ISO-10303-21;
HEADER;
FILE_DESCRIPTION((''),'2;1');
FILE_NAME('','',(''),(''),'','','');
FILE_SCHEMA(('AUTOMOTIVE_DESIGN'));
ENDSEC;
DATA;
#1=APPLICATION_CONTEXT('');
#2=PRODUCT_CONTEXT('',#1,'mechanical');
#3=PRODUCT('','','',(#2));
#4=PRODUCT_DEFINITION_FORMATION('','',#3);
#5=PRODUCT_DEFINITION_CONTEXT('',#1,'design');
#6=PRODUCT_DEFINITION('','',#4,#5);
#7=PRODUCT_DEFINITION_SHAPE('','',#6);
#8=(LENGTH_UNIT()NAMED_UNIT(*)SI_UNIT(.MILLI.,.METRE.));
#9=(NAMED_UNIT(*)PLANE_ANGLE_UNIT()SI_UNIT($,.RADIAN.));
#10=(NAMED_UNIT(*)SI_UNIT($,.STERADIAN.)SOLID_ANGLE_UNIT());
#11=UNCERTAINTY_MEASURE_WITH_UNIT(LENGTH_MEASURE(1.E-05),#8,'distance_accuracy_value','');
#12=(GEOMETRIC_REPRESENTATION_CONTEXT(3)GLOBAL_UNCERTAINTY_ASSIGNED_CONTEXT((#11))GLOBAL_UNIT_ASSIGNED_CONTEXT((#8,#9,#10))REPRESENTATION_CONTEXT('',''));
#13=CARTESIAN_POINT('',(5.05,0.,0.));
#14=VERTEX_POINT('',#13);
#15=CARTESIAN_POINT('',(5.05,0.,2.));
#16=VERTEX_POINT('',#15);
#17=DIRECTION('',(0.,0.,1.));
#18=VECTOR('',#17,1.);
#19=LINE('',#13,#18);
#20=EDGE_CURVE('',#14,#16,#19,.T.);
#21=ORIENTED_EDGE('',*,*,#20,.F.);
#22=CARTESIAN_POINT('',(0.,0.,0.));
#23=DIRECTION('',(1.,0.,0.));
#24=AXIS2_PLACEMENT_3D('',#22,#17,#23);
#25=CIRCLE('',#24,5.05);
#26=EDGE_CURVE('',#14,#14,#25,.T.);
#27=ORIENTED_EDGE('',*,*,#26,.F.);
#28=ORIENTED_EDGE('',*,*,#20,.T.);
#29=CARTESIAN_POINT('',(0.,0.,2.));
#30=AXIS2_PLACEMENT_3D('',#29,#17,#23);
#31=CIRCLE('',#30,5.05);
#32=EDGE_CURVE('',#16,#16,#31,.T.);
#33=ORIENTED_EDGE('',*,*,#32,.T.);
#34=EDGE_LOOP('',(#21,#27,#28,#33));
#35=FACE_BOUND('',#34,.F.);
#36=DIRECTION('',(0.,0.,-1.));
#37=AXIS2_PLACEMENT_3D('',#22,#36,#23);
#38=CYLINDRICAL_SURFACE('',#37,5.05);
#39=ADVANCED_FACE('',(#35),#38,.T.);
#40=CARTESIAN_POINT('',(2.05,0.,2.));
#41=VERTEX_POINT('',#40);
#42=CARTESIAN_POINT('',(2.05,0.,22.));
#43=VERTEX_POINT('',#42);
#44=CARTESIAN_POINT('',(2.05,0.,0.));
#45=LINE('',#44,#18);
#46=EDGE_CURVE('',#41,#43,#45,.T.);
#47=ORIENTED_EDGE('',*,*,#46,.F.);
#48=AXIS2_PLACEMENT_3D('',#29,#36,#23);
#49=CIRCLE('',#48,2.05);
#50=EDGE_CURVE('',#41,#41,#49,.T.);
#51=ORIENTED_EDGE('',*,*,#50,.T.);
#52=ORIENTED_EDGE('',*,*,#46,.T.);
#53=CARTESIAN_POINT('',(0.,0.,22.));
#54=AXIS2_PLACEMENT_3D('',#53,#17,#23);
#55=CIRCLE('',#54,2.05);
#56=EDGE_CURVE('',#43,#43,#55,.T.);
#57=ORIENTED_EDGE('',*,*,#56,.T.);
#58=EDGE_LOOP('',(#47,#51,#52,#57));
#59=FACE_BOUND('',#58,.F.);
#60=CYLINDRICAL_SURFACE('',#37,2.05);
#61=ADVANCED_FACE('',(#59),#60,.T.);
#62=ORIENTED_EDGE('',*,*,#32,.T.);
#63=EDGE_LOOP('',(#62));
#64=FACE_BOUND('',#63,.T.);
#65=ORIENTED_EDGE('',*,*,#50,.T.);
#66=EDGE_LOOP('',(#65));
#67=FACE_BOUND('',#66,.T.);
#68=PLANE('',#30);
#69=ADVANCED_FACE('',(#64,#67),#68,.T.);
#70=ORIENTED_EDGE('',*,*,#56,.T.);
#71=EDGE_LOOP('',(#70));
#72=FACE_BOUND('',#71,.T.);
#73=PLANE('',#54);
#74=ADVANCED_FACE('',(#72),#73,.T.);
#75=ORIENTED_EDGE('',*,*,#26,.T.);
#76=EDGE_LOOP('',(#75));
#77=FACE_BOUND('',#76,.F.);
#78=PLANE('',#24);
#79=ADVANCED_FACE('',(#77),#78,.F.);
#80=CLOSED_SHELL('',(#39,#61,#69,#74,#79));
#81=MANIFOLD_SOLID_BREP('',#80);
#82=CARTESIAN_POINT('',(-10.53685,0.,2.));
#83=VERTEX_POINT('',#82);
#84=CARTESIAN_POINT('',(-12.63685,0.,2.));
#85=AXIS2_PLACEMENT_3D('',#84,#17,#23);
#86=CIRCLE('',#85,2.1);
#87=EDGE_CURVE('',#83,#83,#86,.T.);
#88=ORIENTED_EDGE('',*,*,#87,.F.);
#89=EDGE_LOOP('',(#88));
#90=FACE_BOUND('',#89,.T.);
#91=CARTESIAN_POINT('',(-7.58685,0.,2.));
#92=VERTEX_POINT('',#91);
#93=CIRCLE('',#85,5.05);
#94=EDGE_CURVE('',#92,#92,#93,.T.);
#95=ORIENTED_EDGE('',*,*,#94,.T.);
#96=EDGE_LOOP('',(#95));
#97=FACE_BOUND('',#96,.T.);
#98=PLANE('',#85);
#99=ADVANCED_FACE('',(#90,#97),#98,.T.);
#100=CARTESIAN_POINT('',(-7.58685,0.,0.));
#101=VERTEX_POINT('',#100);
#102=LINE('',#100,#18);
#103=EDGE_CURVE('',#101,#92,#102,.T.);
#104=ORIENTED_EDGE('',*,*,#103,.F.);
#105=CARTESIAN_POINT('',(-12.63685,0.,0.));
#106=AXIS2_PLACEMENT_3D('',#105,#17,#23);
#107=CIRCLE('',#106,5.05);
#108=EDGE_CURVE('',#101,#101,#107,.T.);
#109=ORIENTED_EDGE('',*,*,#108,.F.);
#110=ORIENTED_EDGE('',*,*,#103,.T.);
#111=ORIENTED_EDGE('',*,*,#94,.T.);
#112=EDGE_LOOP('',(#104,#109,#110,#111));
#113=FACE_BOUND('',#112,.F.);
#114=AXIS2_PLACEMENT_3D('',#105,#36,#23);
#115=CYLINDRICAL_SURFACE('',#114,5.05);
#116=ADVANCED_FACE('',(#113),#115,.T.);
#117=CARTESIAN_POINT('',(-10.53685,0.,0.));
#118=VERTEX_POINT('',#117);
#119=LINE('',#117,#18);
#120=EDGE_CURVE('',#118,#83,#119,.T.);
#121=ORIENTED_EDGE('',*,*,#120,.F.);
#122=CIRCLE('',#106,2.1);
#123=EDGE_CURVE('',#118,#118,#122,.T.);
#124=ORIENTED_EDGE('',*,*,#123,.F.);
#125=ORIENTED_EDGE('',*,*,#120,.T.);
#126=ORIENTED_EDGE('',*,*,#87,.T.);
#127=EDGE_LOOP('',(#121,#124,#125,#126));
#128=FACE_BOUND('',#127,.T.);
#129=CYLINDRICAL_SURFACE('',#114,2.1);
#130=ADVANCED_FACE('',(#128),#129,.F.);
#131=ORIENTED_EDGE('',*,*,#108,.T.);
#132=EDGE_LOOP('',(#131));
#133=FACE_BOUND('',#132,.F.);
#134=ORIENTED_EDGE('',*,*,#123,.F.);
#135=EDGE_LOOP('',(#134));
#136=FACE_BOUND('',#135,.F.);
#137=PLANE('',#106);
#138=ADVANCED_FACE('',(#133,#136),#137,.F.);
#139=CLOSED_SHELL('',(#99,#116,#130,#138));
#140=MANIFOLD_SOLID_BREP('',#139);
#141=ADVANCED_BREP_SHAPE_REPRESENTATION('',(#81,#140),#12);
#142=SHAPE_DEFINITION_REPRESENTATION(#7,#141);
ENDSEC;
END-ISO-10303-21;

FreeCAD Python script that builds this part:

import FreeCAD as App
import Part
import Sketcher

doc = App.newDocument("Part")
body = doc.addObject("PartDesign::Body", "Body")
body.AllowCompound = True

# Sketch on XY plane
sketch1 = body.newObject("Sketcher::SketchObject", "Sketch")
sketch1.AttachmentSupport = (doc.getObject("XY_Plane"), [""])
sketch1.MapMode = "FlatFace"
sketch1.addGeometry([
    Part.Circle(App.Vector(0, 0, 0), App.Vector(0, 0, 1), 5),
    Part.Circle(App.Vector(-12.6, 0, 0), App.Vector(0, 0, 1), 5),
    Part.Circle(App.Vector(-12.6, 0, 0), App.Vector(0, 0, 1), 2.1),
], False)
sketch1.addConstraint([
    Sketcher.Constraint("Coincident", 0, 3, -1, 1),
    Sketcher.Constraint("Coincident", 2, 3, 1, 3),
    Sketcher.Constraint("Equal", 0, 1),
    Sketcher.Constraint("PointOnObject", 1, 3, -1),
    Sketcher.Constraint("Diameter", 0, 10.1),
    Sketcher.Constraint("Diameter", 2, 4.2),
    Sketcher.Constraint("DistanceX", 1, 3, -1, 1, 12.63685),
])
pad1 = body.newObject("PartDesign::Pad", "Pad")
pad1.Profile = sketch1
pad1.Length = 2

# Sketch on XY plane
sketch2 = body.newObject("Sketcher::SketchObject", "Sketch001")
sketch2.AttachmentSupport = (doc.getObject("XY_Plane"), [""])
sketch2.MapMode = "FlatFace"
sketch2.addGeometry(Part.Circle(App.Vector(0, 0, 0), App.Vector(0, 0, 1), 2), False)
sketch2.addConstraint([
    Sketcher.Constraint("Coincident", 0, 3, -1, 1),
    Sketcher.Constraint("Diameter", 0, 4.1),
])
pad2 = body.newObject("PartDesign::Pad", "Pad001")
pad2.Profile = sketch2
pad2.Length = 22

doc.recompute()
